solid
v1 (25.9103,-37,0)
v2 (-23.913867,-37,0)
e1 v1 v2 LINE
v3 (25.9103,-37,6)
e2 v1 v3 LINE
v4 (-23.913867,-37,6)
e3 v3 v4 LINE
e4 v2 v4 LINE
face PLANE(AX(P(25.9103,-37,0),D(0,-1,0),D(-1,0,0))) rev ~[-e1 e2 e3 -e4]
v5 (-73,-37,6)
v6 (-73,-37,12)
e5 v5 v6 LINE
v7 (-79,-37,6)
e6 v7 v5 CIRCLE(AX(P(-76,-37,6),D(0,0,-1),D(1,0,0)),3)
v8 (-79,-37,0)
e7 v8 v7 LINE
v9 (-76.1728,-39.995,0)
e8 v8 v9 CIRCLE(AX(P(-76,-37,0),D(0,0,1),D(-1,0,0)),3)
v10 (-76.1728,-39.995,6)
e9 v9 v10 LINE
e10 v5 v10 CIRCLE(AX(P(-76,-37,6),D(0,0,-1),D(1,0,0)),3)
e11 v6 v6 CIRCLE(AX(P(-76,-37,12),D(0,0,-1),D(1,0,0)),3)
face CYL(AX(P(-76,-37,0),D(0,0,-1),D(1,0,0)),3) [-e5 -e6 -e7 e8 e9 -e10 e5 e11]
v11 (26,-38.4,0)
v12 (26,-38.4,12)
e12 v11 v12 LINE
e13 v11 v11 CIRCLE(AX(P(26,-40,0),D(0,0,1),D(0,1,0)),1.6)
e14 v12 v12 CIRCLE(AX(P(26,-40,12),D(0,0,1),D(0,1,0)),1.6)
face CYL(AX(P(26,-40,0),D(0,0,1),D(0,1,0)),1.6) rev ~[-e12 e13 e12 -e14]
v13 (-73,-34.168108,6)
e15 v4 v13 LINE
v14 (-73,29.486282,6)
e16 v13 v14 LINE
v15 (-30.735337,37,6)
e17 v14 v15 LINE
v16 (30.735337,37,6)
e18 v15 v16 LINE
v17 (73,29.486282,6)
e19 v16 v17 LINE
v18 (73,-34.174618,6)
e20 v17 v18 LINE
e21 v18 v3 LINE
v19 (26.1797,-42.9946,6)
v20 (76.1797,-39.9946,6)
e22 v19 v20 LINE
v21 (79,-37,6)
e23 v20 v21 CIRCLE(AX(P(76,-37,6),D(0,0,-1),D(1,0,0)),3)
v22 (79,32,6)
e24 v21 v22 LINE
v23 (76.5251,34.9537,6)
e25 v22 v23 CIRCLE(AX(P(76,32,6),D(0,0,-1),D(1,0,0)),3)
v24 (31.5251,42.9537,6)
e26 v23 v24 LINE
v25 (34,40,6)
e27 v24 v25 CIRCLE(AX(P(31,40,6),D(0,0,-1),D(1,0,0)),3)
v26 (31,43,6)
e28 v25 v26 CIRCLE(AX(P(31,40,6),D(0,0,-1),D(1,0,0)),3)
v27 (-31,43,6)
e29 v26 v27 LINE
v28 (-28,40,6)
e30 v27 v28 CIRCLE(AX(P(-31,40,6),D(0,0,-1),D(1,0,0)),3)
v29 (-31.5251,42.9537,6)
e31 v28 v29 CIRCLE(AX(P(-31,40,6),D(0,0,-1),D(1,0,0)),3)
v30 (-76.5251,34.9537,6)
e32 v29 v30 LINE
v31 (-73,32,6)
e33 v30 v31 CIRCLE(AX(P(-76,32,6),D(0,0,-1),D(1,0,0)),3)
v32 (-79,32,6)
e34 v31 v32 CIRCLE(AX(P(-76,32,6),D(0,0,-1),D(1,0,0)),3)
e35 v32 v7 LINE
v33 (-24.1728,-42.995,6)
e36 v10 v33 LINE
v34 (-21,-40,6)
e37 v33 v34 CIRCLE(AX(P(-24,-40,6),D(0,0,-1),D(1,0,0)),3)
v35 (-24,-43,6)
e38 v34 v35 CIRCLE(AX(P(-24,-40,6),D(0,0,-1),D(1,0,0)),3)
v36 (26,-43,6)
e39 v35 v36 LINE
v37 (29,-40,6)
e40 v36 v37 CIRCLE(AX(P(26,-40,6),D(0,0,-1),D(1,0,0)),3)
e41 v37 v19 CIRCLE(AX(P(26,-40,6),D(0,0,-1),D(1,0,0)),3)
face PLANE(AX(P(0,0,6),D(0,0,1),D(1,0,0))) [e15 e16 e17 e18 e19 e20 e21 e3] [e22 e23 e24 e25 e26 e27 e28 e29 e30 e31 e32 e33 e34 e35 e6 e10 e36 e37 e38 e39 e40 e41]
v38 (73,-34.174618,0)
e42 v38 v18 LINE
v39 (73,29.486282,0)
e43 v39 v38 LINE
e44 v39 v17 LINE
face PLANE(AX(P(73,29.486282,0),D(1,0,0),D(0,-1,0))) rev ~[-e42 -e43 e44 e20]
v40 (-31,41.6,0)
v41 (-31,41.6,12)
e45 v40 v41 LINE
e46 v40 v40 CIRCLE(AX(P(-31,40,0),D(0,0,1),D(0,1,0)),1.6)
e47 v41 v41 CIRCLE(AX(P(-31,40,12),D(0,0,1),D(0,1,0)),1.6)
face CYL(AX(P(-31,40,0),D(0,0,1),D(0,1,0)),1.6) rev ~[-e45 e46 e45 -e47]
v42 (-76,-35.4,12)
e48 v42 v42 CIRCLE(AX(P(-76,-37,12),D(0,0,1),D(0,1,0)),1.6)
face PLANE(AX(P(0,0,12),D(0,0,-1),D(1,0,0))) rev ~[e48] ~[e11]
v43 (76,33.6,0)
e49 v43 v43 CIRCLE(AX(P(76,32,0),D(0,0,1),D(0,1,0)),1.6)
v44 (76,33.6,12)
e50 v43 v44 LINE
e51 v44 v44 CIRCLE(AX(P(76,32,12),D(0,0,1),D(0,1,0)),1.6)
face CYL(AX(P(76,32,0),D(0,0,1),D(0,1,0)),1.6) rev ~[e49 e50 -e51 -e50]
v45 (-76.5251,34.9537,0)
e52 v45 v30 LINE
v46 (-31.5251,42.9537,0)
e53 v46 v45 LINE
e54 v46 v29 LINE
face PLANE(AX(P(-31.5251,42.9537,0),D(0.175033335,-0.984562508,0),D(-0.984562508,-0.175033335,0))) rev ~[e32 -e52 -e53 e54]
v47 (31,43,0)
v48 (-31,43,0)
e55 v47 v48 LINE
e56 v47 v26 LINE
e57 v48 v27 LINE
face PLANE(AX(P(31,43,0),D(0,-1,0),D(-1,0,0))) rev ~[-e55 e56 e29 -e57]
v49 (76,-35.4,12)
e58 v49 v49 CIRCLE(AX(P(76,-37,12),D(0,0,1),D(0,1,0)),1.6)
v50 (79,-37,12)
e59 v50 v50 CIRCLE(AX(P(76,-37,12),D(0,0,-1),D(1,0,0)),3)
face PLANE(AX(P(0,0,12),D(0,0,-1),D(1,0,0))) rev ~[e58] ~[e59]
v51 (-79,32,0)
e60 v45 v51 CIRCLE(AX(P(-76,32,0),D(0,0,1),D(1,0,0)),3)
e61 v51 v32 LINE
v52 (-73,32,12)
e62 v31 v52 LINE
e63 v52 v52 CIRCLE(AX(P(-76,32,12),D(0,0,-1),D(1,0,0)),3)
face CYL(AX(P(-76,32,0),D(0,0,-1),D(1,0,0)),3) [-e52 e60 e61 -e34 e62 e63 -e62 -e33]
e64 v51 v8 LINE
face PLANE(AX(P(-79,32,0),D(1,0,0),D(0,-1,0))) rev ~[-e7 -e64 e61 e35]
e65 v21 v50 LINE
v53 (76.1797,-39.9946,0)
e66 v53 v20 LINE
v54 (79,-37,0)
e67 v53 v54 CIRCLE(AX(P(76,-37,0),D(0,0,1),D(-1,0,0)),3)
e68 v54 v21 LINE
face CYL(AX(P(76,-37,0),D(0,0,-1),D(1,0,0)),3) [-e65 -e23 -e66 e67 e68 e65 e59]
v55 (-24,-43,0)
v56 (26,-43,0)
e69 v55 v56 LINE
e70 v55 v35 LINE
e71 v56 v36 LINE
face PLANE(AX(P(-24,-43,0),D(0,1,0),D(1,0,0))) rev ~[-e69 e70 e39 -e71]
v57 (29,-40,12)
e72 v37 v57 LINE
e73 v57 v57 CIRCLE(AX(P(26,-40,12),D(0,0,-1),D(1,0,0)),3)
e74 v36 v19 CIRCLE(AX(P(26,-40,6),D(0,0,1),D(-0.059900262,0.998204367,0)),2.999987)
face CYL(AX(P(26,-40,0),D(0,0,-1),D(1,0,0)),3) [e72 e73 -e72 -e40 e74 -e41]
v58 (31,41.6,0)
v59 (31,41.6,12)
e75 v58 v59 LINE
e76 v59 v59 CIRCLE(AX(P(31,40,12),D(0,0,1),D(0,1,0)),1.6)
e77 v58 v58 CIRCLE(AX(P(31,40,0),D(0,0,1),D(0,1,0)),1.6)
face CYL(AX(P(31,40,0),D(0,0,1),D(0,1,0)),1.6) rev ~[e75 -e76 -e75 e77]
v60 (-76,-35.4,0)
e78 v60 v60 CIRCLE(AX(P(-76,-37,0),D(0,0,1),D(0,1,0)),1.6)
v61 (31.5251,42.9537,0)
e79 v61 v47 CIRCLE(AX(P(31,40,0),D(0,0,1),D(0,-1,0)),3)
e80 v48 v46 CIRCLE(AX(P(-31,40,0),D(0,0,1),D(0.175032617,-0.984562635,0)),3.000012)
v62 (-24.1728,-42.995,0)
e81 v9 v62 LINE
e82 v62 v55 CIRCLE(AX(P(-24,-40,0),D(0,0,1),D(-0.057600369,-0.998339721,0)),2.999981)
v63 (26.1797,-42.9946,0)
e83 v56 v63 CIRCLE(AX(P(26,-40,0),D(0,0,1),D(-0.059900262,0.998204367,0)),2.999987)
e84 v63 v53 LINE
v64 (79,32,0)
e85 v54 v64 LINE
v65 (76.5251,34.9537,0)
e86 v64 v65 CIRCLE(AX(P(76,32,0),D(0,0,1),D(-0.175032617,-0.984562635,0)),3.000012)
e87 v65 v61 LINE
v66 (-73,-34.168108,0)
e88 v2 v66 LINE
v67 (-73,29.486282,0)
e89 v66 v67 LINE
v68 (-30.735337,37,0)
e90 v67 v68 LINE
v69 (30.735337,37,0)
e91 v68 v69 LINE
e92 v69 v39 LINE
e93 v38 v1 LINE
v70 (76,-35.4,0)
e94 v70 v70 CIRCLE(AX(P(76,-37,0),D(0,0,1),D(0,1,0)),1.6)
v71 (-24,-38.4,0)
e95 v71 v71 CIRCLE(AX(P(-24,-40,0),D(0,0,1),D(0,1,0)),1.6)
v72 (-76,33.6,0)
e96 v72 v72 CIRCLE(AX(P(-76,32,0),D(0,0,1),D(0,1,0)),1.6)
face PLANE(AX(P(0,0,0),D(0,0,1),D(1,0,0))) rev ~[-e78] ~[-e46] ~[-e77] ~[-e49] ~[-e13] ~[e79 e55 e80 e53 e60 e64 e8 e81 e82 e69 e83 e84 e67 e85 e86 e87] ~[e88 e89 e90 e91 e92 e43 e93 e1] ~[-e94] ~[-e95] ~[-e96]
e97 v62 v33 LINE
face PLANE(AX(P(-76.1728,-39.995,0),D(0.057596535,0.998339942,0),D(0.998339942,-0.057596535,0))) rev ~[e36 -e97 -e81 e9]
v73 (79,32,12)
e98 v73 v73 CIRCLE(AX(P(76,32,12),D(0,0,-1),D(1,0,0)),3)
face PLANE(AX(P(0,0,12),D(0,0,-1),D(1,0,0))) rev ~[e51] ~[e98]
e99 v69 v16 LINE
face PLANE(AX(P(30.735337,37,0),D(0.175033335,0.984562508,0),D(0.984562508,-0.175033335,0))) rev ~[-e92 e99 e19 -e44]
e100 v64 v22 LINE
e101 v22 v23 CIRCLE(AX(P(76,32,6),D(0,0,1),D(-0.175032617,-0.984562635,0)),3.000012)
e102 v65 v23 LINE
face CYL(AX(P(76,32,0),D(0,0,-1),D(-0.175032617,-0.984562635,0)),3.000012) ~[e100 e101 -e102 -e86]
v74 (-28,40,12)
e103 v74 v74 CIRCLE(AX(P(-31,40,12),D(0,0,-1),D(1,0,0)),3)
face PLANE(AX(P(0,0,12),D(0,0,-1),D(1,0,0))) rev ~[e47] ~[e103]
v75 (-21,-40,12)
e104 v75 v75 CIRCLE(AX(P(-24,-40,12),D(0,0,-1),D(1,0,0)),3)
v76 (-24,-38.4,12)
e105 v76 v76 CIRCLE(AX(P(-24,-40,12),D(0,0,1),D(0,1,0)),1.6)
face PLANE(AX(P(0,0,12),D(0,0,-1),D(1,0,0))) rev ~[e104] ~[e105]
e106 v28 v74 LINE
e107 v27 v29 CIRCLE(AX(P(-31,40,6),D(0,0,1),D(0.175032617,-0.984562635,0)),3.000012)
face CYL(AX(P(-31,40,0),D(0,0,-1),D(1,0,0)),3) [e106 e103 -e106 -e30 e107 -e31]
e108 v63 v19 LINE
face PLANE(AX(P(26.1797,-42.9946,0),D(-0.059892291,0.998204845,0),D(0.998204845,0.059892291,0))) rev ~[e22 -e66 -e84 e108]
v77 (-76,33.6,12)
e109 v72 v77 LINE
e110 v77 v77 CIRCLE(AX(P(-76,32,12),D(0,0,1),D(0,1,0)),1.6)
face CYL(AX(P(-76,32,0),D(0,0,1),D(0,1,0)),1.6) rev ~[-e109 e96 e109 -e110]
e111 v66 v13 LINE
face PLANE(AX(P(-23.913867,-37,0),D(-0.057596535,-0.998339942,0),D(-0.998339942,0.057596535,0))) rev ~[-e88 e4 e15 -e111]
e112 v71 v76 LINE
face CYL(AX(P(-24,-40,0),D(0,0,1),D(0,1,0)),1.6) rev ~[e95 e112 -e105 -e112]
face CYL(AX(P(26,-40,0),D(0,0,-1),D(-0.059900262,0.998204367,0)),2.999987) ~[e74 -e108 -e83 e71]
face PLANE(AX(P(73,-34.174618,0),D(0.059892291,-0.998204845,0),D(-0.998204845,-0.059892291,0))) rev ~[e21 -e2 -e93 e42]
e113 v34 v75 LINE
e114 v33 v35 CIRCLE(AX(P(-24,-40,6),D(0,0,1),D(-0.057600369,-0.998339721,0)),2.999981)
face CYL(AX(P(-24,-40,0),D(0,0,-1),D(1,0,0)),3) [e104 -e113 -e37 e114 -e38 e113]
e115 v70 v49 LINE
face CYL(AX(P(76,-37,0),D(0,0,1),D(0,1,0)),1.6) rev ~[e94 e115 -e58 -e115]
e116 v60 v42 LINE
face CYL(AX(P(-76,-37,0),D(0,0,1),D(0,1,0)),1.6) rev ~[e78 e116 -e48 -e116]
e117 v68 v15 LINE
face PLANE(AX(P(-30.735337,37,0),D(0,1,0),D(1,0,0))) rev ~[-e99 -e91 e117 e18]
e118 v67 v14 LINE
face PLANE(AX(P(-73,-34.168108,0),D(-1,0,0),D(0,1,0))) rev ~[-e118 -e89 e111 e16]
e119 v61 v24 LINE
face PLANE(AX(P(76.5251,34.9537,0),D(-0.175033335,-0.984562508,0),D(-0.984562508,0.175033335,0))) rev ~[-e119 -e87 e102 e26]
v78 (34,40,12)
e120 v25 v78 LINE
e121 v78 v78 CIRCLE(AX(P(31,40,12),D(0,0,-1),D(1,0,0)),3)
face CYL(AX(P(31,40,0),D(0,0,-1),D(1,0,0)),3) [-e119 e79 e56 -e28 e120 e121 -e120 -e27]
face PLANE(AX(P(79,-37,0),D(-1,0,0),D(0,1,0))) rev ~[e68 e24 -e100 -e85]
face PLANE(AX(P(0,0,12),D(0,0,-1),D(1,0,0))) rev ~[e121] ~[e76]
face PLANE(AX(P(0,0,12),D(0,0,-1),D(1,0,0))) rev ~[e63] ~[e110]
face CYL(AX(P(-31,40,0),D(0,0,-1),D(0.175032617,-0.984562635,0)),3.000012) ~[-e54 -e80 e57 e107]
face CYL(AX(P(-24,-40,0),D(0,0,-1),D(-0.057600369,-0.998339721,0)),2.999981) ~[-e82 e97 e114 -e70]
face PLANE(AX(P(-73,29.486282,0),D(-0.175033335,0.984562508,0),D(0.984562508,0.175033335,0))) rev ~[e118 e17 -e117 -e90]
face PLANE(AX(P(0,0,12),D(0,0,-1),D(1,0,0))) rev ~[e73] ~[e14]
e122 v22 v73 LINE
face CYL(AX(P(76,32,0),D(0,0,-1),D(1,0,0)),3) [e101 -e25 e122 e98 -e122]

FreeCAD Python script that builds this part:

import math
import FreeCAD as App
import Part
import Sketcher

V = App.Vector
Q = App.Units.Quantity


def add_polygon(sketch, points):
    """Adds a closed chain of lines whose ends are joined by coincident constraints."""
    first, n = sketch.GeometryCount, len(points)
    for a, b in zip(points, points[1:] + points[:1]):
        sketch.addGeometry(Part.LineSegment(App.Vector(*a, 0), App.Vector(*b, 0)), False)
    for i in range(n):
        sketch.addConstraint(Sketcher.Constraint("Coincident", first + i, 2, first + (i + 1) % n, 1))

doc = App.newDocument("Part")
body = doc.addObject("PartDesign::Body", "Body")

# Sketch on XY plane
sketch1 = doc.addObject("Sketcher::SketchObject", "Sketch")
body.addObject(sketch1)
sketch1.AttachmentSupport = (doc.XY_Plane, [""])
sketch1.MapMode = "FlatFace"
sketch1.addGeometry(Part.LineSegment(V(-79, 32, 0), V(-79, -37, 0)), False)  # 0
sketch1.addGeometry(Part.ArcOfCircle(Part.Circle(V(-76, -37, 0), V(0, 0, 1), 3), math.radians(180), math.radians(266.697914)), False)  # 1
sketch1.addGeometry(Part.LineSegment(V(-76.1728, -39.995, 0), V(-24.1728, -42.995, 0)), False)  # 2
sketch1.addGeometry(Part.ArcOfCircle(Part.Circle(V(-24, -40, 0), V(0, 0, 1), 2.999981), math.radians(-93.302086), math.radians(-90)), False)  # 3
sketch1.addGeometry(Part.LineSegment(V(-24, -43, 0), V(26, -43, 0)), False)  # 4
sketch1.addGeometry(Part.ArcOfCircle(Part.Circle(V(26, -40, 0), V(0, 0, 1), 2.999987), math.radians(-90), math.radians(-86.565912)), False)  # 5
sketch1.addGeometry(Part.LineSegment(V(26.1797, -42.9946, 0), V(76.1797, -39.9946, 0)), False)  # 6
sketch1.addGeometry(Part.ArcOfCircle(Part.Circle(V(76, -37, 0), V(0, 0, 1), 3), math.radians(-86.565912), math.radians(0)), False)  # 7
sketch1.addGeometry(Part.LineSegment(V(79, -37, 0), V(79, 32, 0)), False)  # 8
sketch1.addGeometry(Part.ArcOfCircle(Part.Circle(V(76, 32, 0), V(0, 0, 1), 3.000012), math.radians(0), math.radians(79.919444)), False)  # 9
sketch1.addGeometry(Part.LineSegment(V(76.5251, 34.9537, 0), V(31.5251, 42.9537, 0)), False)  # 10
sketch1.addGeometry(Part.ArcOfCircle(Part.Circle(V(31, 40, 0), V(0, 0, 1), 3), math.radians(79.919444), math.radians(90)), False)  # 11
sketch1.addGeometry(Part.LineSegment(V(31, 43, 0), V(-31, 43, 0)), False)  # 12
sketch1.addGeometry(Part.ArcOfCircle(Part.Circle(V(-31, 40, 0), V(0, 0, 1), 3.000012), math.radians(90), math.radians(100.080556)), False)  # 13
sketch1.addGeometry(Part.LineSegment(V(-31.5251, 42.9537, 0), V(-76.5251, 34.9537, 0)), False)  # 14
sketch1.addGeometry(Part.ArcOfCircle(Part.Circle(V(-76, 32, 0), V(0, 0, 1), 3), math.radians(100.080556), math.radians(180)), False)  # 15
add_polygon(sketch1, [(-73, -34.168108), (-73, 29.486282), (-30.735337, 37), (30.735337, 37), (73, 29.486282), (73, -34.174618), (25.9103, -37), (-23.913867, -37)])  # lines 16-23
sketch1.addConstraint([
    Sketcher.Constraint("Tangent", 0, 2, 1, 1),
    Sketcher.Constraint("Tangent", 1, 2, 2, 1),
    Sketcher.Constraint("Tangent", 2, 2, 3, 1),
    Sketcher.Constraint("Tangent", 3, 2, 4, 1),
    Sketcher.Constraint("Tangent", 4, 2, 5, 1),
    Sketcher.Constraint("Tangent", 5, 2, 6, 1),
    Sketcher.Constraint("Tangent", 6, 2, 7, 1),
    Sketcher.Constraint("Tangent", 7, 2, 8, 1),
    Sketcher.Constraint("Tangent", 8, 2, 9, 1),
    Sketcher.Constraint("Tangent", 9, 2, 10, 1),
    Sketcher.Constraint("Tangent", 10, 2, 11, 1),
    Sketcher.Constraint("Tangent", 11, 2, 12, 1),
    Sketcher.Constraint("Tangent", 12, 2, 13, 1),
    Sketcher.Constraint("Tangent", 13, 2, 14, 1),
    Sketcher.Constraint("Tangent", 14, 2, 15, 1),
    Sketcher.Constraint("Tangent", 15, 2, 0, 1),
    Sketcher.Constraint("Vertical", 0),
    Sketcher.Constraint("Horizontal", 4),
    Sketcher.Constraint("Vertical", 8),
    Sketcher.Constraint("Horizontal", 12),
    Sketcher.Constraint("Vertical", 16),
    Sketcher.Constraint("Horizontal", 18),
    Sketcher.Constraint("Vertical", 20),
    Sketcher.Constraint("Horizontal", 22),
    Sketcher.Constraint("Equal", 1, 3),
    Sketcher.Constraint("Equal", 3, 5),
    Sketcher.Constraint("Equal", 5, 7),
    Sketcher.Constraint("Equal", 7, 9),
    Sketcher.Constraint("Equal", 9, 11),
    Sketcher.Constraint("Equal", 11, 13),
    Sketcher.Constraint("Equal", 13, 15),
    Sketcher.Constraint("Symmetric", 1, 3, 7, 3, -2),
    Sketcher.Constraint("Symmetric", 10, 2, 13, 2, -2),
    Sketcher.Constraint("Symmetric", 16, 2, 19, 2, -2),
    Sketcher.Constraint("Parallel", 14, 17),
    Sketcher.Constraint("Parallel", 10, 19),
    Sketcher.Constraint("Parallel", 6, 21),
    Sketcher.Constraint("Parallel", 2, 23),
    Sketcher.Constraint("Horizontal", 7, 2, 21, 2),
    Sketcher.Constraint("Radius", 1, Q("3 mm")),
    Sketcher.Constraint("DistanceY", 3, 2, 1, 3, Q("6 mm")),
    Sketcher.Constraint("DistanceX", 15, 2, 16, 2, Q("6 mm")),
    Sketcher.Constraint("DistanceY", 17, 2, 12, 2, Q("6 mm")),
    Sketcher.Constraint("DistanceX", 4, 1, 4, 2, Q("50 mm")),
    Sketcher.Constraint("DistanceX", 12, 2, 12, 1, Q("62 mm")),
    Sketcher.Constraint("DistanceY", 0, 2, 0, 1, Q("69 mm")),
    Sketcher.Constraint("DistanceX", 1, 3, -1, 1, Q("76 mm")),
    Sketcher.Constraint("DistanceY", 1, 3, -1, 1, Q("37 mm")),
    Sketcher.Constraint("DistanceX", 3, 3, -1, 1, Q("24 mm")),
    Sketcher.Constraint("DistanceY", -1, 1, 11, 3, Q("40 mm")),
    Sketcher.Constraint("DistanceY", 20, 2, 20, 1, Q("63.661 mm")),
    Sketcher.Constraint("DistanceY", 6, 2, 20, 2, Q("5.82 mm")),
    Sketcher.Constraint("DistanceX", 22, 2, 22, 1, Q("49.8242 mm")),
])
pad1 = doc.addObject("PartDesign::Pad", "Pad")
body.addObject(pad1)
pad1.Profile = sketch1
pad1.Length = 6

# Sketch on XY plane
sketch2 = doc.addObject("Sketcher::SketchObject", "Sketch001")
body.addObject(sketch2)
sketch2.AttachmentSupport = (doc.XY_Plane, [""])
sketch2.MapMode = "FlatFace"
sketch2.addGeometry([
    Part.Circle(V(-76, -37, 0), V(0, 0, 1), 3),  # 0
    Part.Circle(V(-24, -40, 0), V(0, 0, 1), 3),  # 1
    Part.Circle(V(26, -40, 0), V(0, 0, 1), 3),  # 2
    Part.Circle(V(76, -37, 0), V(0, 0, 1), 3),  # 3
    Part.Circle(V(76, 32, 0), V(0, 0, 1), 3),  # 4
    Part.Circle(V(31, 40, 0), V(0, 0, 1), 3),  # 5
    Part.Circle(V(-31, 40, 0), V(0, 0, 1), 3),  # 6
    Part.Circle(V(-76, 32, 0), V(0, 0, 1), 3),  # 7
], False)
sketch2.addConstraint([
    Sketcher.Constraint("Equal", 0, 1),
    Sketcher.Constraint("Equal", 1, 2),
    Sketcher.Constraint("Equal", 2, 3),
    Sketcher.Constraint("Equal", 3, 4),
    Sketcher.Constraint("Equal", 4, 5),
    Sketcher.Constraint("Equal", 5, 6),
    Sketcher.Constraint("Equal", 6, 7),
    Sketcher.Constraint("Symmetric", 0, 3, 3, 3, -2),
    Sketcher.Constraint("Symmetric", 5, 3, 6, 3, -2),
    Sketcher.Constraint("Symmetric", 4, 3, 7, 3, -2),
    Sketcher.Constraint("Horizontal", 1, 3, 2, 3),
    Sketcher.Constraint("Vertical", 3, 3, 4, 3),
    Sketcher.Constraint("Diameter", 0, Q("6 mm")),
    Sketcher.Constraint("DistanceX", 0, 3, -1, 1, Q("76 mm")),
    Sketcher.Constraint("DistanceY", 0, 3, -1, 1, Q("37 mm")),
    Sketcher.Constraint("DistanceX", 1, 3, -1, 1, Q("24 mm")),
    Sketcher.Constraint("DistanceY", 1, 3, -1, 1, Q("40 mm")),
    Sketcher.Constraint("DistanceX", -1, 1, 2, 3, Q("26 mm")),
    Sketcher.Constraint("DistanceY", -1, 1, 4, 3, Q("32 mm")),
    Sketcher.Constraint("DistanceX", -1, 1, 5, 3, Q("31 mm")),
    Sketcher.Constraint("DistanceY", -1, 1, 5, 3, Q("40 mm")),
])
pad2 = doc.addObject("PartDesign::Pad", "Pad001")
body.addObject(pad2)
pad2.Profile = sketch2
pad2.Length = 12

# Sketch on XY plane
sketch3 = doc.addObject("Sketcher::SketchObject", "Sketch002")
body.addObject(sketch3)
sketch3.AttachmentSupport = (doc.XY_Plane, [""])
sketch3.MapMode = "FlatFace"
sketch3.addGeometry([
    Part.Circle(V(76, 32, 0), V(0, 0, 1), 1.6),  # 0
    Part.Circle(V(31, 40, 0), V(0, 0, 1), 1.6),  # 1
    Part.Circle(V(-31, 40, 0), V(0, 0, 1), 1.6),  # 2
    Part.Circle(V(-76, 32, 0), V(0, 0, 1), 1.6),  # 3
    Part.Circle(V(-76, -37, 0), V(0, 0, 1), 1.6),  # 4
    Part.Circle(V(-24, -40, 0), V(0, 0, 1), 1.6),  # 5
    Part.Circle(V(26, -40, 0), V(0, 0, 1), 1.6),  # 6
    Part.Circle(V(76, -37, 0), V(0, 0, 1), 1.6),  # 7
], False)
sketch3.addConstraint([
    Sketcher.Constraint("Equal", 0, 1),
    Sketcher.Constraint("Equal", 1, 2),
    Sketcher.Constraint("Equal", 2, 3),
    Sketcher.Constraint("Equal", 3, 4),
    Sketcher.Constraint("Equal", 4, 5),
    Sketcher.Constraint("Equal", 5, 6),
    Sketcher.Constraint("Equal", 6, 7),
    Sketcher.Constraint("Symmetric", 1, 3, 2, 3, -2),
    Sketcher.Constraint("Symmetric", 0, 3, 3, 3, -2),
    Sketcher.Constraint("Symmetric", 4, 3, 7, 3, -2),
    Sketcher.Constraint("Horizontal", 5, 3, 6, 3),
    Sketcher.Constraint("Vertical", 3, 3, 4, 3),
    Sketcher.Constraint("Diameter", 0, Q("3.2 mm")),
    Sketcher.Constraint("DistanceX", -1, 1, 0, 3, Q("76 mm")),
    Sketcher.Constraint("DistanceY", -1, 1, 0, 3, Q("32 mm")),
    Sketcher.Constraint("DistanceX", -1, 1, 1, 3, Q("31 mm")),
    Sketcher.Constraint("DistanceY", -1, 1, 1, 3, Q("40 mm")),
    Sketcher.Constraint("DistanceY", 4, 3, -1, 1, Q("37 mm")),
    Sketcher.Constraint("DistanceX", 5, 3, -1, 1, Q("24 mm")),
    Sketcher.Constraint("DistanceY", 5, 3, -1, 1, Q("40 mm")),
    Sketcher.Constraint("DistanceX", -1, 1, 6, 3, Q("26 mm")),
])
doc.recompute()
hole = doc.addObject("PartDesign::Hole", "Hole")
body.addObject(hole)
hole.Profile = sketch3
hole.ThreadType = "None"
hole.Diameter = 3.2
hole.DepthType = "ThroughAll"
hole.Reversed = True

doc.recompute()
